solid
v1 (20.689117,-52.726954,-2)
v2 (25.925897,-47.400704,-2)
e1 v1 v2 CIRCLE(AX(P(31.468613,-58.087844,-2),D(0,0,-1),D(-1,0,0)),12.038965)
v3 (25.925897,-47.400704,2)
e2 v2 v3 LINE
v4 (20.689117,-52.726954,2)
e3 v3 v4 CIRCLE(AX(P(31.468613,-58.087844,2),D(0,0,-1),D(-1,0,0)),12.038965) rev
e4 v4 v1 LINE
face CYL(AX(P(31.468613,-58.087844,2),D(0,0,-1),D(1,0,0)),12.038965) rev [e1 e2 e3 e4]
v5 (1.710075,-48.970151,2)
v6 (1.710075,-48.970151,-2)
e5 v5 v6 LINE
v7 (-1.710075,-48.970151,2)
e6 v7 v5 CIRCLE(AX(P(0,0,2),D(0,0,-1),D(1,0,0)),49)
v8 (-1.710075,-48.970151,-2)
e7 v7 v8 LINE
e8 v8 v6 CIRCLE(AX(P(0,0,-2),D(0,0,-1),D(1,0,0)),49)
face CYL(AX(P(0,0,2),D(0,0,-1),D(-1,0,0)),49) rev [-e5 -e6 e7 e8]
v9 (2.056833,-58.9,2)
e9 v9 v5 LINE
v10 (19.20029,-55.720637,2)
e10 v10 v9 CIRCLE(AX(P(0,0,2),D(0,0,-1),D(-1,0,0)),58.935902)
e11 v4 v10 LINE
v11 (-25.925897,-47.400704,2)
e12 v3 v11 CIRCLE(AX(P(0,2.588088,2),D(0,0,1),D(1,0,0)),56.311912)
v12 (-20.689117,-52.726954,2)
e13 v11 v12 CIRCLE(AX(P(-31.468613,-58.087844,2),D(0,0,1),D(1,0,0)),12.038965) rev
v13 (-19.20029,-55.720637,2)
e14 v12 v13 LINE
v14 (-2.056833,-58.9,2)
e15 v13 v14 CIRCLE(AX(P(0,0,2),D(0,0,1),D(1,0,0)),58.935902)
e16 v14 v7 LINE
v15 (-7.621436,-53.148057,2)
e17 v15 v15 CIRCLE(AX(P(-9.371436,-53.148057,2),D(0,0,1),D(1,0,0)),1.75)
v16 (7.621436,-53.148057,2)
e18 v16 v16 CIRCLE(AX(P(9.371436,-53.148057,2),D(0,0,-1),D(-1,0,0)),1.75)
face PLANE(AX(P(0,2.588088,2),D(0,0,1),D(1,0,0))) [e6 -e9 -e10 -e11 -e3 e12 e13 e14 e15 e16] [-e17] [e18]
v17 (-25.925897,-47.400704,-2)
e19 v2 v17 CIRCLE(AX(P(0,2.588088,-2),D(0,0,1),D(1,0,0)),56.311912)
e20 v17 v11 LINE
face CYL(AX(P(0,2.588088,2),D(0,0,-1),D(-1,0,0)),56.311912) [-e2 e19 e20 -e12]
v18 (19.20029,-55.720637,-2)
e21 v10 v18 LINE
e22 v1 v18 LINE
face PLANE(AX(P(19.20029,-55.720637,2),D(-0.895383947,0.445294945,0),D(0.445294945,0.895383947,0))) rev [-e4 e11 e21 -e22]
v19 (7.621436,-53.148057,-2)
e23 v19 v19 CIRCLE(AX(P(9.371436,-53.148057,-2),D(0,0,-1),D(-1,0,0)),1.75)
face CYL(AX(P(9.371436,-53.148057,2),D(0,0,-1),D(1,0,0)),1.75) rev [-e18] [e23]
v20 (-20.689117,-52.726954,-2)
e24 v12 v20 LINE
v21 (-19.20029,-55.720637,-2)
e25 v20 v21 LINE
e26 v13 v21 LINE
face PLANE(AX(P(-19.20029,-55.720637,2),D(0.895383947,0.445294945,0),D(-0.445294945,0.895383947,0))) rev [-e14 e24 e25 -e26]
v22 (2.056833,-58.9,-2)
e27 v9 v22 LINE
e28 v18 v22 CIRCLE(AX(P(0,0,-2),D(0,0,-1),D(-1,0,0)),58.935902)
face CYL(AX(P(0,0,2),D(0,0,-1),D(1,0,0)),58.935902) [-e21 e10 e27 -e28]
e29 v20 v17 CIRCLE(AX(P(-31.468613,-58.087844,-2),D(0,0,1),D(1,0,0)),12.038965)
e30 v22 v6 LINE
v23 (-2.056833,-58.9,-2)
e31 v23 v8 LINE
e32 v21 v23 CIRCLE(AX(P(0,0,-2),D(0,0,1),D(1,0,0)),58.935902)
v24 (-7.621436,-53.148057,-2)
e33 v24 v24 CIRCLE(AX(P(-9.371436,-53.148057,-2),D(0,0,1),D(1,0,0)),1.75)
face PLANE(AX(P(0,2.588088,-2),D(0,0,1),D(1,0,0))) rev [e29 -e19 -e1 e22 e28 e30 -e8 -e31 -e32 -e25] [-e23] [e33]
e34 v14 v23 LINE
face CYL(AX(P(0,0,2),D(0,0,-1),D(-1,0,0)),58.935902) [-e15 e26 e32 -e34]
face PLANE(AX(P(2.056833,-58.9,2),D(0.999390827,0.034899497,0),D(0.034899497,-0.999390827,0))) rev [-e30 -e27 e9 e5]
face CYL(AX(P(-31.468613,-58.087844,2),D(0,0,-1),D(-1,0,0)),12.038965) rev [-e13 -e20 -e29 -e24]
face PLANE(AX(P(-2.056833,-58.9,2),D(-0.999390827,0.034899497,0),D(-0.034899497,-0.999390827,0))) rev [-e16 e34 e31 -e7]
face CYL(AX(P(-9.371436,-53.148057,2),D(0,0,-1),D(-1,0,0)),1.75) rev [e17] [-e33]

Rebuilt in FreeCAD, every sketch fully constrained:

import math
import FreeCAD as App
import Part
import Sketcher
from FreeCAD import Vector
Q = App.Units.Quantity


def edges_at(feature, points):
    """Names of the edges that pass closest to the given points."""
    edges = feature.Shape.Edges
    near = lambda p: min(range(len(edges)), key=lambda i: edges[i].distToShape(Part.Vertex(*p))[0])
    return sorted({f"Edge{near(p) + 1}" for p in points})

doc = App.newDocument("Part")
body = doc.addObject("PartDesign::Body", "Body")

# Sketch on XY plane
sketch1 = body.newObject("Sketcher::SketchObject", "Sketch")
sketch1.AttachmentSupport = (doc.getObject("XY_Plane"), [""])
sketch1.MapMode = "FlatFace"
sketch1.addGeometry(Part.LineSegment(Vector(-22.5, -49, 0), Vector(-19.2, -55.7, 0)), False)
sketch1.addGeometry(Part.ArcOfCircle(Part.Circle(Vector(0, 0, 0), Vector(0, 0, 1), 58.9), math.radians(-109.01), math.radians(-92)), False)
sketch1.addGeometry(Part.LineSegment(Vector(-2.1, -58.9, 0), Vector(-1.7, -49, 0)), False)
sketch1.addGeometry(Part.ArcOfCircle(Part.Circle(Vector(0, 0, 0), Vector(0, 0, 1), 49), math.radians(90), math.radians(268)), False)
sketch1.addGeometry(Part.LineSegment(Vector(0, 49, 0), Vector(0, 58.9, 0)), False)
sketch1.addGeometry(Part.ArcOfCircle(Part.Circle(Vector(0, 2.6, 0), Vector(0, 0, 1), 56.3), math.radians(90), math.radians(246)), False)
sketch1.addGeometry(Part.Circle(Vector(-9.4, -53.1, 0), Vector(0, 0, 1), 1.8), False)
sketch1.addConstraint(Sketcher.Constraint("Coincident", 0, 2, 1, 1))
sketch1.addConstraint(Sketcher.Constraint("Coincident", 1, 2, 2, 1))
sketch1.addConstraint(Sketcher.Constraint("Coincident", 2, 2, 3, 2))
sketch1.addConstraint(Sketcher.Constraint("Coincident", 3, 1, 4, 1))
sketch1.addConstraint(Sketcher.Constraint("Coincident", 4, 2, 5, 1))
sketch1.addConstraint(Sketcher.Constraint("Coincident", 5, 2, 0, 1))
sketch1.addConstraint(Sketcher.Constraint("Vertical", 4))
sketch1.addConstraint(Sketcher.Constraint("Coincident", 1, 3, -1, 1))
sketch1.addConstraint(Sketcher.Constraint("Coincident", 3, 3, -1, 1))
sketch1.addConstraint(Sketcher.Constraint("PointOnObject", 5, 3, -2))
sketch1.addConstraint(Sketcher.Constraint("PointOnObject", 3, 1, -2))
sketch1.addConstraint(Sketcher.Constraint("Radius", 3, 49.0))
sketch1.addConstraint(Sketcher.Constraint("Diameter", 6, 3.5))
sketch1.addConstraint(Sketcher.Constraint("Angle", 2, Q("88 deg")))
sketch1.addConstraint(Sketcher.Constraint("DistanceY", 4, 1, 4, 2, 9.9))
sketch1.addConstraint(Sketcher.Constraint("DistanceY", 1, 2, -1, 1, 58.9))
sketch1.addConstraint(Sketcher.Constraint("Radius", 5, 56.311912))
sketch1.addConstraint(Sketcher.Constraint("Radius", 1, 58.935902))
sketch1.addConstraint(Sketcher.Constraint("DistanceX", 5, 2, 0, 2, 3.332901))
sketch1.addConstraint(Sketcher.Constraint("DistanceX", 0, 2, -1, 1, 19.20029))
sketch1.addConstraint(Sketcher.Constraint("DistanceY", 0, 2, 6, 3, 2.572581))
sketch1.addConstraint(Sketcher.Constraint("DistanceX", 6, 3, 2, 2, 7.661361))
pad1 = body.newObject("PartDesign::Pad", "Pad")
pad1.Profile = sketch1
pad1.Length = 4
pad1.Midplane = True
doc.recompute()

fillet = body.newObject("PartDesign::Fillet", "Fillet")
fillet.Base = (pad1, edges_at(pad1, [(-22.533, -49.019, 0)]))
fillet.Radius = 12.038965
body2 = doc.addObject("PartDesign::Body", "Body001")
doc.recompute()

body2.BaseFeature = body
doc.recompute()

mirroring = doc.addObject("Part::Mirroring", "Mirroring")
mirroring.Source = body
mirroring.Base = Vector(0, 58.9, 2)
mirroring.Normal = Vector(-1, 0, 0)
body3 = doc.addObject("PartDesign::Body", "Body002")
body3.BaseFeature = mirroring
boolean = body2.newObject("PartDesign::Boolean", "Boolean")
boolean.Type = "Fuse"
boolean.addObjects([body3])
doc.recompute()
mirroring.Visibility = False

doc.recompute()
